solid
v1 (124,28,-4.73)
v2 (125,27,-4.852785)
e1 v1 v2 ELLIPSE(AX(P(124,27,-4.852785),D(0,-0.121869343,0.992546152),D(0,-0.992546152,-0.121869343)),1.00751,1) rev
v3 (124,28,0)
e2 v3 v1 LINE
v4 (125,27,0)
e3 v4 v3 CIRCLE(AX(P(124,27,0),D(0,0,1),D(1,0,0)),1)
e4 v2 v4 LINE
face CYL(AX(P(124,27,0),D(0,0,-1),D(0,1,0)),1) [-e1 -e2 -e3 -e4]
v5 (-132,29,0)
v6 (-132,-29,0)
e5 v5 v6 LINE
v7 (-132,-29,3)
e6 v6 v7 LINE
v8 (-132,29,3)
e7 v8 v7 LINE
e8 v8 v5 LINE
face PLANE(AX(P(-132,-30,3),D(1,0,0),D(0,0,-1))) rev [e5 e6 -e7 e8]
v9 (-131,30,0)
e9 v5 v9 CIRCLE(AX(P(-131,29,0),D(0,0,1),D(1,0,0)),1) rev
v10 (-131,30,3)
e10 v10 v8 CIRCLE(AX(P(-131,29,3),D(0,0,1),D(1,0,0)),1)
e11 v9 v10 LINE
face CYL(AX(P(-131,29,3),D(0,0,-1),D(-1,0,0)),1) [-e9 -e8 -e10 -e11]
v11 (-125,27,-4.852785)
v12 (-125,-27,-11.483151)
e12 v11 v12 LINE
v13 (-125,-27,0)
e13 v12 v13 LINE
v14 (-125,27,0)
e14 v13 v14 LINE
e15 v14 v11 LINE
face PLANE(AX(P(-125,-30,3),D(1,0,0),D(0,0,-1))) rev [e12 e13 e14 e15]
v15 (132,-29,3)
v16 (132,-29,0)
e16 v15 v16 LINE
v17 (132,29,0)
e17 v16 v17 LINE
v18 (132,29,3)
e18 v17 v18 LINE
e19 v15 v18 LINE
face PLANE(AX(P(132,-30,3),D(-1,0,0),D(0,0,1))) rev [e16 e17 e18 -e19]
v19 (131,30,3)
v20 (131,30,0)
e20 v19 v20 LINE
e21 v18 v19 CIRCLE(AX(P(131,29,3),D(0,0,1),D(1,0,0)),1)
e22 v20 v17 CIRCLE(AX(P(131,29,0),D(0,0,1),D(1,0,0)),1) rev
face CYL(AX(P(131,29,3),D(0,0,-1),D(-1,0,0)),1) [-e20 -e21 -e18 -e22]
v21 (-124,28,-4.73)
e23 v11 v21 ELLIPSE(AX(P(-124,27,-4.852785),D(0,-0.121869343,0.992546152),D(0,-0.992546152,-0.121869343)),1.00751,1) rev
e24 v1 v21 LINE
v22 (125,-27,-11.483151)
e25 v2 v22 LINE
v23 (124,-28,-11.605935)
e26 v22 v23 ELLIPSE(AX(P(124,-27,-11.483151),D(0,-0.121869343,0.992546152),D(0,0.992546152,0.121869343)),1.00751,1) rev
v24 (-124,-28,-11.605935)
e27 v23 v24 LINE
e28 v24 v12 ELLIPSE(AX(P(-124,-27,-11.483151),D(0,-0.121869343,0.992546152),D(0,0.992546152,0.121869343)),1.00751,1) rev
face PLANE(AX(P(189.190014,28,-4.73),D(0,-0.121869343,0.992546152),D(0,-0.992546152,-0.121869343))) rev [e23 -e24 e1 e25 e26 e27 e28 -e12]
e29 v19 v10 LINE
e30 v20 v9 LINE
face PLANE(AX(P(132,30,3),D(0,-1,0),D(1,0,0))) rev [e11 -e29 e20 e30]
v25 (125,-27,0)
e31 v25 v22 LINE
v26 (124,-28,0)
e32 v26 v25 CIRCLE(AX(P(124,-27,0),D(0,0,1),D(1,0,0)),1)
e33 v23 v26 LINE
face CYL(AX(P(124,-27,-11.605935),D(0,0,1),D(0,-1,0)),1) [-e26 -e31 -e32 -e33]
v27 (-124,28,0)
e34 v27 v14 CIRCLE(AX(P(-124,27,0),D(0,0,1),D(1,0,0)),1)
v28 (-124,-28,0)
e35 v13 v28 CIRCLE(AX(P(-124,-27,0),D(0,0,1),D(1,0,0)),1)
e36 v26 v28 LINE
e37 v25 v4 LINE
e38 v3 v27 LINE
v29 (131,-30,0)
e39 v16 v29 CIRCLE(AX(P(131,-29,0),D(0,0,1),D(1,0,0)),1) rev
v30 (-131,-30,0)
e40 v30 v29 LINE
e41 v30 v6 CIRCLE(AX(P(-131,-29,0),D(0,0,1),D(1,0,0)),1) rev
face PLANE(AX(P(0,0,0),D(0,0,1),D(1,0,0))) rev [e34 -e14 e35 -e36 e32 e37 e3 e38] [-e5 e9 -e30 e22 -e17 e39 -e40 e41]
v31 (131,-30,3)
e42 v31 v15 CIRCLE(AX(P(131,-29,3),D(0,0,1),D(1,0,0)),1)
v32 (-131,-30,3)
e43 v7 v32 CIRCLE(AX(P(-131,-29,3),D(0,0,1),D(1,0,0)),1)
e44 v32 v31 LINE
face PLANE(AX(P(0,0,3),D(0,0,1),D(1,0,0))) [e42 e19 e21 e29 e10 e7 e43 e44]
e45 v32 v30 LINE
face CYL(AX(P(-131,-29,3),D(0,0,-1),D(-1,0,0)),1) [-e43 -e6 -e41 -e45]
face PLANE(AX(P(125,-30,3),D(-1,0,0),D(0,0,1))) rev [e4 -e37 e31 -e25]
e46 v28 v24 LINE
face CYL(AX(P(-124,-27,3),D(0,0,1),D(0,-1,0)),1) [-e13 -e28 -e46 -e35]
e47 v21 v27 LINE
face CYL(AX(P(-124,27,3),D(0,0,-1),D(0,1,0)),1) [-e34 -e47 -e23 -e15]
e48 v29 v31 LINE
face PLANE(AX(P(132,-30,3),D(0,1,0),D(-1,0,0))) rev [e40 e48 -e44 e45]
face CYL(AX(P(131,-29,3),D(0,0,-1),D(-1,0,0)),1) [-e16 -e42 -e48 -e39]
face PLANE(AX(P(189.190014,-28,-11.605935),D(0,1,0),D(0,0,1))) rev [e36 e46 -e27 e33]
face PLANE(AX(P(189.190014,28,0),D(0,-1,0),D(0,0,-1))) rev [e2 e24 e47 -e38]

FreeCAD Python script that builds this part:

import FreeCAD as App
import Part
import Sketcher
from FreeCAD import Vector
Q = App.Units.Quantity


def edges_at(feature, points):
    """Names of the edges that pass closest to the given points."""
    edges = feature.Shape.Edges
    near = lambda p: min(range(len(edges)), key=lambda i: edges[i].distToShape(Part.Vertex(*p))[0])
    return sorted({f"Edge{near(p) + 1}" for p in points})

doc = App.newDocument("Part")
params = doc.addObject("Spreadsheet::Sheet", "Params")
for row, (alias, value) in enumerate([
    ("sketch1_width", "264 mm"),
    ("sketch1_height", "60 mm"),
    ("pad1_length", "3 mm"),
    ("sketch2_width", "56 mm"),
    ("sketch2_height", "4.73 mm"),
    ("pad2_length", "125 mm"),
    ("pad2_length2", "125 mm"),
    ("fillet_radius", "1 mm"),
], start=1):
    params.set(f"A{row}", alias)
    params.set(f"B{row}", "=" + value)
    params.setAlias(f"B{row}", alias)

body = doc.addObject("PartDesign::Body", "Body")

# Sketch on XY plane
sketch1 = body.newObject("Sketcher::SketchObject", "Sketch")
sketch1.AttachmentSupport = (doc.getObject("XY_Plane"), [""])
sketch1.MapMode = "FlatFace"
sketch1.addGeometry(Part.LineSegment(Vector(-132, 30, 0), Vector(-132, -30, 0)), False)
sketch1.addGeometry(Part.LineSegment(Vector(-132, -30, 0), Vector(132, -30, 0)), False)
sketch1.addGeometry(Part.LineSegment(Vector(132, -30, 0), Vector(132, 30, 0)), False)
sketch1.addGeometry(Part.LineSegment(Vector(132, 30, 0), Vector(-132, 30, 0)), False)
sketch1.addConstraint(Sketcher.Constraint("Coincident", 0, 2, 1, 1))
sketch1.addConstraint(Sketcher.Constraint("Coincident", 1, 2, 2, 1))
sketch1.addConstraint(Sketcher.Constraint("Coincident", 2, 2, 3, 1))
sketch1.addConstraint(Sketcher.Constraint("Coincident", 3, 2, 0, 1))
sketch1.addConstraint(Sketcher.Constraint("Vertical", 0))
sketch1.addConstraint(Sketcher.Constraint("Horizontal", 1))
sketch1.addConstraint(Sketcher.Constraint("Vertical", 2))
sketch1.addConstraint(Sketcher.Constraint("Horizontal", 3))
sketch1.addConstraint(Sketcher.Constraint("Symmetric", 0, 2, 2, 2, -1, 1))
sketch1.addConstraint(Sketcher.Constraint("DistanceX", 1, 1, 1, 2, 264.0))
sketch1.addConstraint(Sketcher.Constraint("DistanceY", 0, 2, 0, 1, 60.0))
sketch1.setExpression("Constraints[9]", "Params.sketch1_width")
sketch1.setExpression("Constraints[10]", "Params.sketch1_height")
pad1 = body.newObject("PartDesign::Pad", "Pad")
pad1.Profile = sketch1
pad1.setExpression("Length", "Params.pad1_length")

# Sketch on YZ plane
sketch2 = body.newObject("Sketcher::SketchObject", "Sketch001")
sketch2.AttachmentSupport = (doc.getObject("YZ_Plane"), [""])
sketch2.MapMode = "FlatFace"
sketch2.addGeometry(Part.LineSegment(Vector(28, -4.7, 0), Vector(28, 0, 0)), False)
sketch2.addGeometry(Part.LineSegment(Vector(28, 0, 0), Vector(-28, 0, 0)), False)
sketch2.addGeometry(Part.LineSegment(Vector(-28, 0, 0), Vector(-28, -11.6, 0)), False)
sketch2.addGeometry(Part.LineSegment(Vector(-28, -11.6, 0), Vector(28, -4.7, 0)), False)
sketch2.addConstraint(Sketcher.Constraint("Coincident", 0, 2, 1, 1))
sketch2.addConstraint(Sketcher.Constraint("Coincident", 1, 2, 2, 1))
sketch2.addConstraint(Sketcher.Constraint("Coincident", 2, 2, 3, 1))
sketch2.addConstraint(Sketcher.Constraint("Coincident", 3, 2, 0, 1))
sketch2.addConstraint(Sketcher.Constraint("Vertical", 0))
sketch2.addConstraint(Sketcher.Constraint("Horizontal", 1))
sketch2.addConstraint(Sketcher.Constraint("Vertical", 2))
sketch2.addConstraint(Sketcher.Constraint("Symmetric", 0, 2, 1, 2, -1, 1))
sketch2.addConstraint(Sketcher.Constraint("DistanceX", 1, 2, 1, 1, 56.0))
sketch2.addConstraint(Sketcher.Constraint("Angle", 3, Q("7 deg")))
sketch2.addConstraint(Sketcher.Constraint("DistanceY", 0, 1, 0, 2, 4.73))
sketch2.setExpression("Constraints[8]", "Params.sketch2_width")
sketch2.setExpression("Constraints[10]", "Params.sketch2_height")
pad2 = body.newObject("PartDesign::Pad", "Pad001")
pad2.Profile = sketch2
pad2.Type = "TwoLengths"
pad2.setExpression("Length", "Params.pad2_length")
pad2.setExpression("Length2", "Params.pad2_length2")
doc.recompute()

fillet = body.newObject("PartDesign::Fillet", "Fillet")
fillet.Base = (pad2, edges_at(pad2, [
    (125, 28, -2.365),
    (125, -28, -5.803),
    (-125, 28, -2.365),
    (-125, -28, -5.803),
    (-132, 30, 1.5),
    (132, 30, 1.5),
    (132, -30, 1.5),
    (-132, -30, 1.5),
]))
fillet.setExpression("Radius", "Params.fillet_radius")

doc.recompute()
